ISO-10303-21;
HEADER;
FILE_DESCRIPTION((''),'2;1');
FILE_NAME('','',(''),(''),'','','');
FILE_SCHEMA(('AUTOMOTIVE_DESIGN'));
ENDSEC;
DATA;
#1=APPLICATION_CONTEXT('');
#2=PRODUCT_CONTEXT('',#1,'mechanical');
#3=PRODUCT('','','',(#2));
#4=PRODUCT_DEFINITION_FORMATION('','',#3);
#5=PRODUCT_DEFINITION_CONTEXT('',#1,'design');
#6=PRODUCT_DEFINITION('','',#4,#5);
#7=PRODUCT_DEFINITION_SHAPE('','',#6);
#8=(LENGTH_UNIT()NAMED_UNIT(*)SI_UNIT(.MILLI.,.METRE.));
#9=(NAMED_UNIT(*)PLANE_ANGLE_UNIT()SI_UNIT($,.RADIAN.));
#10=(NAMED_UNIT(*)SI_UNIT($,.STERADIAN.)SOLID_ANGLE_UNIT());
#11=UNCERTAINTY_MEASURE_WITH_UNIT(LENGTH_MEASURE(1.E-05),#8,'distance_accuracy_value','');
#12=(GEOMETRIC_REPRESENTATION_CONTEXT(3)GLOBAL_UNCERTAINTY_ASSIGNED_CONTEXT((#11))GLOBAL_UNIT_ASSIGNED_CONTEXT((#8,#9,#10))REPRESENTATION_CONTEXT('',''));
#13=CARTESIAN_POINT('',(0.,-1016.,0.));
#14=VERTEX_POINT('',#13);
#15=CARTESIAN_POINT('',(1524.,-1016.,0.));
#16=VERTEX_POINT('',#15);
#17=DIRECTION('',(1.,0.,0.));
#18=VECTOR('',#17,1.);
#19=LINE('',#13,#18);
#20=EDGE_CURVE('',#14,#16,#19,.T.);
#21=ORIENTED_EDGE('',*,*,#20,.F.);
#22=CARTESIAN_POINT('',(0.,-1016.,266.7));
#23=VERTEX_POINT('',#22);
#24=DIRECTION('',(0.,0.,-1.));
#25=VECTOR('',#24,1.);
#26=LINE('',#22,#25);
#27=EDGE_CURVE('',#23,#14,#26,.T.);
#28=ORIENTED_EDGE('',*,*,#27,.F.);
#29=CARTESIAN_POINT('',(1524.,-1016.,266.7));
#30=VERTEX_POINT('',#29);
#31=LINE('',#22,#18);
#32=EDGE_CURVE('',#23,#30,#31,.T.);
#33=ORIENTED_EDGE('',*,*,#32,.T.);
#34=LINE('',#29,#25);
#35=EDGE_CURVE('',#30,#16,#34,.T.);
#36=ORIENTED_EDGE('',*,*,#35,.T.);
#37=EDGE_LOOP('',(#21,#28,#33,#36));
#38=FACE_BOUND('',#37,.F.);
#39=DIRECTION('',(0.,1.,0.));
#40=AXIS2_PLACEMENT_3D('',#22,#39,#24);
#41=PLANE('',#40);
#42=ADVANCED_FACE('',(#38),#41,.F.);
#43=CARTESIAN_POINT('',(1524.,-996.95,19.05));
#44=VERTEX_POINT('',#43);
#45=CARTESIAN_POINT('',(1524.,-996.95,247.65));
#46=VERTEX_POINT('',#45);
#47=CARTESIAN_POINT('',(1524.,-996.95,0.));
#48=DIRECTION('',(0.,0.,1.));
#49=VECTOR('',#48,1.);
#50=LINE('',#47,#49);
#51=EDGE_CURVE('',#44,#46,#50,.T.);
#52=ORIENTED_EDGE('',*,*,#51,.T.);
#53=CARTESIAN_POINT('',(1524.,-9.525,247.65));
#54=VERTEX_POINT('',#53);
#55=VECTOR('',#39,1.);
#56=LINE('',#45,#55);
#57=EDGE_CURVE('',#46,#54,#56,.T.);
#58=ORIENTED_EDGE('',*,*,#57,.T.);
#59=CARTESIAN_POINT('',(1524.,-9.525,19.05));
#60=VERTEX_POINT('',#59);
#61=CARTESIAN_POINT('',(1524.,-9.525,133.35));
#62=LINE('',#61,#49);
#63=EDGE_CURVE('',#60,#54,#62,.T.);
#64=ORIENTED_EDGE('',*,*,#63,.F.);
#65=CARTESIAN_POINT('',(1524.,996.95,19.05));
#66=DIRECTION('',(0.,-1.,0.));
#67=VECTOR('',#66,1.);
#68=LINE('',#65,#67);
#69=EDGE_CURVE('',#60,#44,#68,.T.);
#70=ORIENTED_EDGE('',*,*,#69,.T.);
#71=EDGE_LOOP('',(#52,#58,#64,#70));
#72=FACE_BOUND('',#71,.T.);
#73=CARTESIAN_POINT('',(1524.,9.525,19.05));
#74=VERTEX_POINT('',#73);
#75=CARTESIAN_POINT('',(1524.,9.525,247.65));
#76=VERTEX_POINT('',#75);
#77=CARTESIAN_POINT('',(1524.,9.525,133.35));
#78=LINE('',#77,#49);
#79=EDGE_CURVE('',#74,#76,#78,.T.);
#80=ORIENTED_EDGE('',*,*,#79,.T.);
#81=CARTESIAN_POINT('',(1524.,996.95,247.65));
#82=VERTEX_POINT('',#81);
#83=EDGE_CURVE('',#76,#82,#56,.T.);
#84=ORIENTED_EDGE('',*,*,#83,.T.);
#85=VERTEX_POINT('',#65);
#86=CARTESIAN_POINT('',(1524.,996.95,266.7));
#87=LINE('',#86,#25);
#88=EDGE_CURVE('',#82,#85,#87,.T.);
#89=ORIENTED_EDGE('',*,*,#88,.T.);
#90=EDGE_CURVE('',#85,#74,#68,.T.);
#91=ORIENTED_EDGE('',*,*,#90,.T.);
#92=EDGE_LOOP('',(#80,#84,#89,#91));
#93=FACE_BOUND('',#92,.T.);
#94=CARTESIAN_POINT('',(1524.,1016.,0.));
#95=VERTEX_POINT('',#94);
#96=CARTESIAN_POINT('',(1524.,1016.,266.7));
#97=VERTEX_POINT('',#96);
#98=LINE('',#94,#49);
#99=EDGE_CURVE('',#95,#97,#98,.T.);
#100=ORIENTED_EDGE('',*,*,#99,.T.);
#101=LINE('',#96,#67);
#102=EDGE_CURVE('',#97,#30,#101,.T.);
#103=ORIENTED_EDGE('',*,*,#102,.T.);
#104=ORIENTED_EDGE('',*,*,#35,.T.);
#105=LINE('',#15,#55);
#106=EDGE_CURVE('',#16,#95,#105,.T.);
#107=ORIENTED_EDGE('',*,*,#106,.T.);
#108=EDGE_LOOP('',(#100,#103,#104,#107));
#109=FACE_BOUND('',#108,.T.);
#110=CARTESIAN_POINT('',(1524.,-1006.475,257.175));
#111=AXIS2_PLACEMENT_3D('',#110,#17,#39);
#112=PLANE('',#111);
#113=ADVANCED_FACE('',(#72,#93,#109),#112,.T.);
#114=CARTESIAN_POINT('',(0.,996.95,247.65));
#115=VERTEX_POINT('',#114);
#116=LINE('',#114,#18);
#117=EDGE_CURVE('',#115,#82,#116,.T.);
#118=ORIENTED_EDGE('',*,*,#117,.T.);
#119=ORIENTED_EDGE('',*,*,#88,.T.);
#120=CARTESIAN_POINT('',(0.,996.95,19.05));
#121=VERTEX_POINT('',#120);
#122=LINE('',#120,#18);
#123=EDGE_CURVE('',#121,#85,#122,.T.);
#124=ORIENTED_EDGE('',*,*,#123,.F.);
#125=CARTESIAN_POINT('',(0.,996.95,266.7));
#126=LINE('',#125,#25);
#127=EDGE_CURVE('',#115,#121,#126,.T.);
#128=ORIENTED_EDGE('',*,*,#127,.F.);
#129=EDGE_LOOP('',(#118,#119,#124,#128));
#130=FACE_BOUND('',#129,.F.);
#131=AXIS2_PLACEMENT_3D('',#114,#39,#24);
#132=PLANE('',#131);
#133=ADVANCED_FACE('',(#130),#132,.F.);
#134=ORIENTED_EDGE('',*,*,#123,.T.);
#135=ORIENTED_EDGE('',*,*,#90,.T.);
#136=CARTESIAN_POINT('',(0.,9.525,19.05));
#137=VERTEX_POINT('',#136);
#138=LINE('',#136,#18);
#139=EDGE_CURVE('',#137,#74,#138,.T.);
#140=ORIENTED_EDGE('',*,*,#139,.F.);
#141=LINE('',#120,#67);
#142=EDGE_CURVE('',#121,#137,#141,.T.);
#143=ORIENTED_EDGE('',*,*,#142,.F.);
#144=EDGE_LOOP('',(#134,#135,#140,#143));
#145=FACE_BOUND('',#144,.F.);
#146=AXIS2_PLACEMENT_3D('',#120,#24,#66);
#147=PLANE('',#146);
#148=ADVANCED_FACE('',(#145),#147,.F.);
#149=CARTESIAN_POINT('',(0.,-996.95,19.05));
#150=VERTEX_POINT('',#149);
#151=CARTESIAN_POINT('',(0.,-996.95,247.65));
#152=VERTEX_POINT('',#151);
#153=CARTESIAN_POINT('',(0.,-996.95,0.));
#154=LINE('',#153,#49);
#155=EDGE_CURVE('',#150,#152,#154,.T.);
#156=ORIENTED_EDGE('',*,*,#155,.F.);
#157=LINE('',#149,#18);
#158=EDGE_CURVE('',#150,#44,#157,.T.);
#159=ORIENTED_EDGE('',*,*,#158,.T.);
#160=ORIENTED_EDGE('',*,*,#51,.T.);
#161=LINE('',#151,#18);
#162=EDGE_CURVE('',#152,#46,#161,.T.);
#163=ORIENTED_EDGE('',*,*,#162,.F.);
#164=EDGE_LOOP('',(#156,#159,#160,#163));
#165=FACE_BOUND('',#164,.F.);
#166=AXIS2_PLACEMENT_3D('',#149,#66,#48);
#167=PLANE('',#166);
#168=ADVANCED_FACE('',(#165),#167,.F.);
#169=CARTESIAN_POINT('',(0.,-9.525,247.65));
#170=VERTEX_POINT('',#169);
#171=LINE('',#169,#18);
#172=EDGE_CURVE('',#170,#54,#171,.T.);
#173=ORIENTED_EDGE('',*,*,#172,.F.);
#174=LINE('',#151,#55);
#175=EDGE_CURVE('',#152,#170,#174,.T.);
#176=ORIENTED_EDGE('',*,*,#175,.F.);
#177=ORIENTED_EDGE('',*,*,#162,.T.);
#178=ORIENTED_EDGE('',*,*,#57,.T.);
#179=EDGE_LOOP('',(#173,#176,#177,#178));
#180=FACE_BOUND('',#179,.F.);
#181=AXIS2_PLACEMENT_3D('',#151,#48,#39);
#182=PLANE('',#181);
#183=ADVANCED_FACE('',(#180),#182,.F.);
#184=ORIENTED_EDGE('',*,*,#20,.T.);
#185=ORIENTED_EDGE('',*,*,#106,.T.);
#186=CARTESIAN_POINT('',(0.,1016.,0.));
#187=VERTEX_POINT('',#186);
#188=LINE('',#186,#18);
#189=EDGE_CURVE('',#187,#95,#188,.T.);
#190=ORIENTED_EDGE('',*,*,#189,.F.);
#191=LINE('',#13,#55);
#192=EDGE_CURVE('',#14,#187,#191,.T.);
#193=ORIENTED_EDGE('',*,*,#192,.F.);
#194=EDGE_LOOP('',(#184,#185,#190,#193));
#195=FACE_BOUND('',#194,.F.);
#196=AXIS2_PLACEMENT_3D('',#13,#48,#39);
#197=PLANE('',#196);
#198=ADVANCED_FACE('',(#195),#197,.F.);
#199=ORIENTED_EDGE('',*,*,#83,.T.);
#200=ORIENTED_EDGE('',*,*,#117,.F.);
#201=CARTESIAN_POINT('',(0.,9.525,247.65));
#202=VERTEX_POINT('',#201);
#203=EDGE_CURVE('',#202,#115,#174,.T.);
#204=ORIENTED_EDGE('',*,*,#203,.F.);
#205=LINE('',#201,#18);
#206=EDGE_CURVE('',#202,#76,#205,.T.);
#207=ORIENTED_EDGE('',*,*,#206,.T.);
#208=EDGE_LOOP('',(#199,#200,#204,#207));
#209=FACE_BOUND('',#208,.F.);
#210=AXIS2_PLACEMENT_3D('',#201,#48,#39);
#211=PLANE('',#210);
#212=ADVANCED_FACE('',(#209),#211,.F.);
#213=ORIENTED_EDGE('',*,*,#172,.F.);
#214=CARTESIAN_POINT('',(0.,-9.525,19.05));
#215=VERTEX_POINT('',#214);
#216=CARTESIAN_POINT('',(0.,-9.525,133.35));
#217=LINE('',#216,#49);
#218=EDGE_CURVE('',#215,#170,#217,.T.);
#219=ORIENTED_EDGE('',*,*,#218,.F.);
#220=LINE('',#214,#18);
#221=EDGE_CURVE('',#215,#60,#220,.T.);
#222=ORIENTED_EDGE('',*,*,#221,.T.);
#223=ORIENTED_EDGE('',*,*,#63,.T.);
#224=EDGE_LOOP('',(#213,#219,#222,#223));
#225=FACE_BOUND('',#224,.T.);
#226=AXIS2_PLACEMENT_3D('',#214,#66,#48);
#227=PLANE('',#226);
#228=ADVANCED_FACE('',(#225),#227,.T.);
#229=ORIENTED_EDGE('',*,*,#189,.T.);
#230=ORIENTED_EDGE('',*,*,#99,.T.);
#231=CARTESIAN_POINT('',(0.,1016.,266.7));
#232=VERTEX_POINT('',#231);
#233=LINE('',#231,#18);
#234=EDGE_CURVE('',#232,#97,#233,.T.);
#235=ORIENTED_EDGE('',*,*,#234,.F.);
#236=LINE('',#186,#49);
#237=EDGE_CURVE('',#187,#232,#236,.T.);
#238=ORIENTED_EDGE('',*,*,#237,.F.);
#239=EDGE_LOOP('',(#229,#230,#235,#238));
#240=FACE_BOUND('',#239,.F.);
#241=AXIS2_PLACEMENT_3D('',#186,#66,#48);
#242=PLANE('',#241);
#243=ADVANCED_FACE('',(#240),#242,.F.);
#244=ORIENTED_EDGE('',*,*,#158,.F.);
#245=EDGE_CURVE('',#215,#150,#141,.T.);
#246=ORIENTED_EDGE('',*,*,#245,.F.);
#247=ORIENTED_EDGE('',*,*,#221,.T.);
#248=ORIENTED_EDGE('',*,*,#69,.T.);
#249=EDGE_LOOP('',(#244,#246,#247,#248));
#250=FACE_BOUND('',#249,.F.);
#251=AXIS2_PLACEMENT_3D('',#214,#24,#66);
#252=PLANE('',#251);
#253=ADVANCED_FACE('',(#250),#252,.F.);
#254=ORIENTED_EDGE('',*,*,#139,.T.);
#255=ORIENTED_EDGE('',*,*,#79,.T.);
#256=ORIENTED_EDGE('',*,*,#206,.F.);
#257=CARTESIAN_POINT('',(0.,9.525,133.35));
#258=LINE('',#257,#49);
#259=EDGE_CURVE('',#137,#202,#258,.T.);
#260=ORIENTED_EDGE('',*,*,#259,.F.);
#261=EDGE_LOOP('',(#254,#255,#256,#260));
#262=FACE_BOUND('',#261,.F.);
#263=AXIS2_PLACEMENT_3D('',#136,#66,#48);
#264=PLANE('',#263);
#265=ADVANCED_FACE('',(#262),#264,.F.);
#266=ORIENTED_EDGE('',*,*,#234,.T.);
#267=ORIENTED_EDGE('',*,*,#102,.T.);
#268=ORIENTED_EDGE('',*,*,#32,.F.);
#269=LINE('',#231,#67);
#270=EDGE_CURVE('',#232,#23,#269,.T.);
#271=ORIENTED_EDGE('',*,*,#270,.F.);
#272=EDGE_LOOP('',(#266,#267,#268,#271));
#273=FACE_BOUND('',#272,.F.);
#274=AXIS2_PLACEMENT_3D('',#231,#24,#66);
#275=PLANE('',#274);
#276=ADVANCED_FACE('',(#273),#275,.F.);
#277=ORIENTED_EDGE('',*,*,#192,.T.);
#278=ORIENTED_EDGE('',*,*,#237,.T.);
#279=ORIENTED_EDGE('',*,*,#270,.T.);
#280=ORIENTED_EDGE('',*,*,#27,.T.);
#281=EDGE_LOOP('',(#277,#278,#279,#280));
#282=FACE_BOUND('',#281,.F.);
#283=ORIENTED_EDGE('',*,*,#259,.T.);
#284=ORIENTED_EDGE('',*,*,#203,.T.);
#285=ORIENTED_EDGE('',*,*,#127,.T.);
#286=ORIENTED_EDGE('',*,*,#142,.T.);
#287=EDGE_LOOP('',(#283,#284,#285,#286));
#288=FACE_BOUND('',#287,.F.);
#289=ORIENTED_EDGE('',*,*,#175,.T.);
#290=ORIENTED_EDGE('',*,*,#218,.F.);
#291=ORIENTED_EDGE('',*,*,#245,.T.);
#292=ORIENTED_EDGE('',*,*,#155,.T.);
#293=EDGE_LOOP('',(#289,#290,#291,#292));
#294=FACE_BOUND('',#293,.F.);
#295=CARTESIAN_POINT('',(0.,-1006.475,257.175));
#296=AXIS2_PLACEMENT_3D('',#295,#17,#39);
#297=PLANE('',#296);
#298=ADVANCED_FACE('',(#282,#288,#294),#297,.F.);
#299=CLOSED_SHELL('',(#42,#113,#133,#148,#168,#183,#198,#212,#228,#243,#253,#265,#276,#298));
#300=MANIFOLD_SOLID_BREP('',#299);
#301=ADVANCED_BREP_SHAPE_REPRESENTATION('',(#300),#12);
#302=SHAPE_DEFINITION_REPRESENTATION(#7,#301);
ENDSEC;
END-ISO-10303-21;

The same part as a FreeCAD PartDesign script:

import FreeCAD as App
import Part
import Sketcher

V = App.Vector
Q = App.Units.Quantity


def add_polygon(sketch, points):
    """Adds a closed chain of lines whose ends are joined by coincident constraints."""
    first, n = sketch.GeometryCount, len(points)
    for a, b in zip(points, points[1:] + points[:1]):
        sketch.addGeometry(Part.LineSegment(App.Vector(*a, 0), App.Vector(*b, 0)), False)
    for i in range(n):
        sketch.addConstraint(Sketcher.Constraint("Coincident", first + i, 2, first + (i + 1) % n, 1))

doc = App.newDocument("Part")
body = doc.addObject("PartDesign::Body", "Body")

sketch1 = body.newObject("Sketcher::SketchObject", "Sketch")
sketch1.AttachmentSupport = (doc.getObject("YZ_Plane"), [""])
sketch1.MapMode = "FlatFace"
add_polygon(sketch1, [(-1016, 267), (-1016, 0), (1016, 0), (1016, 267)])
add_polygon(sketch1, [(997, 248), (997, 19), (10, 19), (10, 248)])
add_polygon(sketch1, [(-10, 19), (-997, 19), (-997, 248), (-10, 248)])
sketch1.addConstraint([
    Sketcher.Constraint("Vertical", 0),
    Sketcher.Constraint("Horizontal", 1),
    Sketcher.Constraint("Vertical", 2),
    Sketcher.Constraint("Horizontal", 3),
    Sketcher.Constraint("Vertical", 4),
    Sketcher.Constraint("Horizontal", 5),
    Sketcher.Constraint("Vertical", 6),
    Sketcher.Constraint("Horizontal", 7),
    Sketcher.Constraint("Horizontal", 8),
    Sketcher.Constraint("Vertical", 9),
    Sketcher.Constraint("Horizontal", 10),
    Sketcher.Constraint("Vertical", 11),
    Sketcher.Constraint("Symmetric", 0, 2, 1, 2, -1, 1),
    Sketcher.Constraint("Symmetric", 4, 2, 8, 2, -2),
    Sketcher.Constraint("Symmetric", 6, 2, 10, 2, -2),
    Sketcher.Constraint("DistanceX", 1, 1, 1, 2, Q("80 in")),
    Sketcher.Constraint("DistanceY", 4, 2, 4, 1, Q("9 in")),
    Sketcher.Constraint("DistanceY", 0, 2, 0, 1, Q("10.5 in")),
    Sketcher.Constraint("DistanceX", 8, 2, 4, 2, Q("78.5 in")),
    Sketcher.Constraint("DistanceX", 5, 2, 5, 1, Q("38.875 in")),
    Sketcher.Constraint("DistanceY", -1, 1, 4, 2, Q("0.75 in")),
])
pad1 = body.newObject("PartDesign::Pad", "Pad")
pad1.Profile = sketch1
pad1.Length = Q("60 in")

doc.recompute()
